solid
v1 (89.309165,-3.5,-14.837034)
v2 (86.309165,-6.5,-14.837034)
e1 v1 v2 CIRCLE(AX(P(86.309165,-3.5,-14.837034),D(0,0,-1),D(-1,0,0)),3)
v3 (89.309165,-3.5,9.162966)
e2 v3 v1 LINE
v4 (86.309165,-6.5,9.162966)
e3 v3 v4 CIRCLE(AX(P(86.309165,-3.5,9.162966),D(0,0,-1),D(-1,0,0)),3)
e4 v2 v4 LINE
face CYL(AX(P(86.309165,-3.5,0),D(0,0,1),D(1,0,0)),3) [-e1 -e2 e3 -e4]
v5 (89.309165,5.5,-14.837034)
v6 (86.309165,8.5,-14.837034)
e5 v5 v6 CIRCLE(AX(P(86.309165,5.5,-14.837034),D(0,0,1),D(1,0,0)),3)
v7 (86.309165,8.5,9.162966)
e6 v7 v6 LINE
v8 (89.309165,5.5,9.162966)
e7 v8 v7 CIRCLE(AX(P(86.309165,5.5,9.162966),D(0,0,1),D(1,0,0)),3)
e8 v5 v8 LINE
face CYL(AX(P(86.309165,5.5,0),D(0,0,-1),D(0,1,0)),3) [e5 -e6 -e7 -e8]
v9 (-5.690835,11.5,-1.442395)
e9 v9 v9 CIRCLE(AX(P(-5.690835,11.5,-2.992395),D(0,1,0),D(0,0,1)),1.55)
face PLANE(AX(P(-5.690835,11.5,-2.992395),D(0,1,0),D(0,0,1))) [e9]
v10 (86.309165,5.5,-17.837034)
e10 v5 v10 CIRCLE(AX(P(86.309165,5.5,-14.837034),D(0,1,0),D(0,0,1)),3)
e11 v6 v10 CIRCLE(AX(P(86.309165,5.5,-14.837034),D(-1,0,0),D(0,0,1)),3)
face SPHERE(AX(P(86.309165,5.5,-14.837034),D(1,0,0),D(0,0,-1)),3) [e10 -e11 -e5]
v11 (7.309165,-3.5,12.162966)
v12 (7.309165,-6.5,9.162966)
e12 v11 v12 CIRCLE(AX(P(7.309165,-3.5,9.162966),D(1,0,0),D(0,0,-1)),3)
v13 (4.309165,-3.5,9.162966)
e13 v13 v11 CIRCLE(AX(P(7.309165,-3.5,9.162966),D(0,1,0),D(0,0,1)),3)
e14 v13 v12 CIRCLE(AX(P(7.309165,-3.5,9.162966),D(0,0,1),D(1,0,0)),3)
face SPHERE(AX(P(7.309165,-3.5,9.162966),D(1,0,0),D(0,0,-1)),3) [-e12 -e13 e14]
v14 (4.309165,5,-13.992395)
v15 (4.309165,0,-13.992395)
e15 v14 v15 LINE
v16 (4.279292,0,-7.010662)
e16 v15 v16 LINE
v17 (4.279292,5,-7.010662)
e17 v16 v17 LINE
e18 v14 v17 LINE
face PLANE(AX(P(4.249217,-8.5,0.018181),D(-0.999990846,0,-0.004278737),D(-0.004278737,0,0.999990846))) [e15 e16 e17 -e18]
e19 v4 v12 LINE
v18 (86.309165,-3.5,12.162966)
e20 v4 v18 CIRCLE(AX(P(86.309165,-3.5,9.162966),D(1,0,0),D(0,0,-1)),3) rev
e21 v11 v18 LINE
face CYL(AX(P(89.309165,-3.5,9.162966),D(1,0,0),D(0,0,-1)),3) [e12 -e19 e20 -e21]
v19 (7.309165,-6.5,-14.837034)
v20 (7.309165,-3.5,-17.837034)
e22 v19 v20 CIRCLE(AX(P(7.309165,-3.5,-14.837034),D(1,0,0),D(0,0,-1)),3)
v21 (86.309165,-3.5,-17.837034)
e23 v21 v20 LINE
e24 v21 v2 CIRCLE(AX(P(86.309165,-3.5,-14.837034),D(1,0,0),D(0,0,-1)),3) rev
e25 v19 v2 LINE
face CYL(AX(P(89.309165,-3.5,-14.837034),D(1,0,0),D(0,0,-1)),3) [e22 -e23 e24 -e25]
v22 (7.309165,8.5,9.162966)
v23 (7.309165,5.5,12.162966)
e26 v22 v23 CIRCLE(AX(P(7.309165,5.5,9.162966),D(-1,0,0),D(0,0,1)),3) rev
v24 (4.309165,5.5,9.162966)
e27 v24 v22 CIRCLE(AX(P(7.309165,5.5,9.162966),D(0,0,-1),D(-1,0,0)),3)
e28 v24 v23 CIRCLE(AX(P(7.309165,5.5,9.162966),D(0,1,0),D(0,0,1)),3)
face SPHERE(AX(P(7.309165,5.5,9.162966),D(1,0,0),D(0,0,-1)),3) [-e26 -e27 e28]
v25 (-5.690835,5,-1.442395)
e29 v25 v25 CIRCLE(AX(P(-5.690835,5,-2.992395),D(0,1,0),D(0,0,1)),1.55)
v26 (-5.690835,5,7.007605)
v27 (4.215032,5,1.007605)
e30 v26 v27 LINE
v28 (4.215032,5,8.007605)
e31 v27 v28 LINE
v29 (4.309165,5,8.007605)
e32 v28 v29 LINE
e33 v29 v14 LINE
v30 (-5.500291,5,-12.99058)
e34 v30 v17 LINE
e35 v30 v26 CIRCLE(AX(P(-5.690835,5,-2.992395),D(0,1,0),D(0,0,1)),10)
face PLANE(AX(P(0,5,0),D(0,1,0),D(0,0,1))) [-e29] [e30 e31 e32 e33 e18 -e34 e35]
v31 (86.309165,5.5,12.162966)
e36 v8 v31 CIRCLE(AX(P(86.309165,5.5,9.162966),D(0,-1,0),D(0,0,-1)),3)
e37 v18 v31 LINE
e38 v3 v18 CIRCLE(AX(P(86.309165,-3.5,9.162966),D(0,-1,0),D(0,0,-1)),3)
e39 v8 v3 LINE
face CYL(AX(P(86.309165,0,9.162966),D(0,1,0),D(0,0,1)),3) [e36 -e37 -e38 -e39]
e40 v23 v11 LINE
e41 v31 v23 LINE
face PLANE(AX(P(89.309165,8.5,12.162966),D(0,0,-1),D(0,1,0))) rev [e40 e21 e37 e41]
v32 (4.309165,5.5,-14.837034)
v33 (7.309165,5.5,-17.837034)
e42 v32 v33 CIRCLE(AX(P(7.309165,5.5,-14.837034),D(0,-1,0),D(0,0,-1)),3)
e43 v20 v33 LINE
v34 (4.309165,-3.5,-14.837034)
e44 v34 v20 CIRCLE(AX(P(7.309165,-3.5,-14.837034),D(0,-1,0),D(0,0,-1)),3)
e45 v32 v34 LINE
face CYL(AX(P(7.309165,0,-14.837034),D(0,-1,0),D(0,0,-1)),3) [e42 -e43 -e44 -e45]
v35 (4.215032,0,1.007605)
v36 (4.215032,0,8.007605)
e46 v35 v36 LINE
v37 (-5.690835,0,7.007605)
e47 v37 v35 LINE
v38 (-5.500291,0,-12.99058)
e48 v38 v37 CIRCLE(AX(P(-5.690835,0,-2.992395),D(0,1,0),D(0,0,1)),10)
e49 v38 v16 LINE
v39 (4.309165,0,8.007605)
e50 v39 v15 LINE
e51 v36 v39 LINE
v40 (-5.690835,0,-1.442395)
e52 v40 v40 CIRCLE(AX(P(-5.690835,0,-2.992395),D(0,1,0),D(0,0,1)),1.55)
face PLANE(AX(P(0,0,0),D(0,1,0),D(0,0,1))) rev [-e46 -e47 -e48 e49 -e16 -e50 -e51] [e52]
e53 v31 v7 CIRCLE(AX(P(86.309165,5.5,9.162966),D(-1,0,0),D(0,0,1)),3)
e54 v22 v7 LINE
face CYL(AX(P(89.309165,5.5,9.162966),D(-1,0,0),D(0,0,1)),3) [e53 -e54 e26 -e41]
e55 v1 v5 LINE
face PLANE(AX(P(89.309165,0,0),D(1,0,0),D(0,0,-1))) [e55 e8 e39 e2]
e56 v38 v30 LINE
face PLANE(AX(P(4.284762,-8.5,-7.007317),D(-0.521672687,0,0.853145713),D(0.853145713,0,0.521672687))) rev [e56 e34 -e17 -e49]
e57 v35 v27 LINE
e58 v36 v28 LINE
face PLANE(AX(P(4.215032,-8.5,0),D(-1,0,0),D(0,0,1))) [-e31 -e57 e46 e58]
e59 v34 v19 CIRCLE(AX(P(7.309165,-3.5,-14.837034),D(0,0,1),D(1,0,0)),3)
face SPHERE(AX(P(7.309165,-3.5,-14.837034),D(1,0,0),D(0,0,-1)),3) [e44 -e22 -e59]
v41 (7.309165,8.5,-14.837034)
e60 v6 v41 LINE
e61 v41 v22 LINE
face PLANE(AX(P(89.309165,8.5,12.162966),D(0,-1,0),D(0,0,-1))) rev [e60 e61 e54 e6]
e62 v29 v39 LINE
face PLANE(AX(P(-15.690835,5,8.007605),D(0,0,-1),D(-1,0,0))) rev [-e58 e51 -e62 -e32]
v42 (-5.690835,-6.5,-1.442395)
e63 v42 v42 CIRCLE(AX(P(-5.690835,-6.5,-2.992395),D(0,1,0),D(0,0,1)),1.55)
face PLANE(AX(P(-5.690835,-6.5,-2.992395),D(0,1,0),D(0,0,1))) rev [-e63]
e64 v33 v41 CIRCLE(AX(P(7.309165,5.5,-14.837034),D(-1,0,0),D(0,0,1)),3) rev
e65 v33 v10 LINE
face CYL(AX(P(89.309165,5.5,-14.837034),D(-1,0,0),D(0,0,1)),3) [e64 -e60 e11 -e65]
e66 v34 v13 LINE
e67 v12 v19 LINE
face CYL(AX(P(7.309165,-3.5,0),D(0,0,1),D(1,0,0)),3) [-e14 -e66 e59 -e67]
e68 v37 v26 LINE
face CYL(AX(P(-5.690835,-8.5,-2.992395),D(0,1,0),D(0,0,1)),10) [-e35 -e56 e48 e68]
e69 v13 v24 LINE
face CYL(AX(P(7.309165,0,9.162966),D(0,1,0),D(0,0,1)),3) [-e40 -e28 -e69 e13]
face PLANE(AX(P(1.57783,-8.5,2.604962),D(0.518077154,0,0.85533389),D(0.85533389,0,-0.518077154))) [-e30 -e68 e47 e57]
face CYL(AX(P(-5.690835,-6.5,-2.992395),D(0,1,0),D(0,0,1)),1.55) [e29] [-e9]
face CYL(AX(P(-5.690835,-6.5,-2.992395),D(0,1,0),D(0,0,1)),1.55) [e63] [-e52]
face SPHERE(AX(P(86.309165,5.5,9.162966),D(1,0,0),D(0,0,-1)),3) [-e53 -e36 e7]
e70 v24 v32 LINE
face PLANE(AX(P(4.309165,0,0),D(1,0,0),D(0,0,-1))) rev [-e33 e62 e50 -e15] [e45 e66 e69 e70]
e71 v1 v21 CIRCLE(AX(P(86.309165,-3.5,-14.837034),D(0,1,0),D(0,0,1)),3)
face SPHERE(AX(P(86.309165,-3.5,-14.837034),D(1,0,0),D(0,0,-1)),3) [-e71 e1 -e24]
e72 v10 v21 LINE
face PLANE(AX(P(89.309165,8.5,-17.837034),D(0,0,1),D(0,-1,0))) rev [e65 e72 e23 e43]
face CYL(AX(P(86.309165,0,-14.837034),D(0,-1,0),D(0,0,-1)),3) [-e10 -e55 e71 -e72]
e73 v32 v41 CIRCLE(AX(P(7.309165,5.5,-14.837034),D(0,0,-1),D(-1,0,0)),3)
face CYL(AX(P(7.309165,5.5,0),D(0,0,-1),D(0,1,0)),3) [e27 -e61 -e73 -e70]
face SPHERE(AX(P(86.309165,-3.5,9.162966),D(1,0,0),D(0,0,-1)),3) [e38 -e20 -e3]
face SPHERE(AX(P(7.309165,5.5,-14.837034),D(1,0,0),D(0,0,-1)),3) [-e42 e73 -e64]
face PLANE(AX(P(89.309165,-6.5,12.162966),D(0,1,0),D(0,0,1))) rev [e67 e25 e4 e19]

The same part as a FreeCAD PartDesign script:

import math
import FreeCAD as App
import Part
import Sketcher
Q = App.Units.Quantity


def edges_at(feature, points):
    """Names of the edges that pass closest to the given points."""
    edges = feature.Shape.Edges
    near = lambda p: min(range(len(edges)), key=lambda i: edges[i].distToShape(Part.Vertex(*p))[0])
    return sorted({f"Edge{near(p) + 1}" for p in points})

doc = App.newDocument("Part")
body = doc.addObject("PartDesign::Body", "Body")

sketch1 = doc.addObject("Sketcher::SketchObject", "Sketch")
body.addObject(sketch1)
sketch1.AttachmentSupport = (doc.XZ_Plane, [""])
sketch1.MapMode = "FlatFace"
sketch1.addGeometry(Part.LineSegment(App.Vector(-16, -14, 0), App.Vector(-16, 8, 0)), False)
sketch1.addGeometry(Part.LineSegment(App.Vector(-16, 8, 0), App.Vector(4, 8, 0)), False)
sketch1.addGeometry(Part.LineSegment(App.Vector(4, 8, 0), App.Vector(4, -14, 0)), False)
sketch1.addGeometry(Part.LineSegment(App.Vector(4, -14, 0), App.Vector(-16, -14, 0)), False)
sketch1.addConstraint(Sketcher.Constraint("Coincident", 0, 2, 1, 1))
sketch1.addConstraint(Sketcher.Constraint("Coincident", 1, 2, 2, 1))
sketch1.addConstraint(Sketcher.Constraint("Coincident", 2, 2, 3, 1))
sketch1.addConstraint(Sketcher.Constraint("Coincident", 3, 2, 0, 1))
sketch1.addConstraint(Sketcher.Constraint("Vertical", 0))
sketch1.addConstraint(Sketcher.Constraint("Horizontal", 1))
sketch1.addConstraint(Sketcher.Constraint("Vertical", 2))
sketch1.addConstraint(Sketcher.Constraint("Horizontal", 3))
sketch1.addConstraint(Sketcher.Constraint("DistanceX", 1, 1, 1, 2, Q("20 mm")))
sketch1.addConstraint(Sketcher.Constraint("DistanceY", 0, 1, 0, 2, Q("22 mm")))
sketch1.addConstraint(Sketcher.Constraint("DistanceX", 0, 2, -1, 1, Q("15.690835 mm")))
sketch1.addConstraint(Sketcher.Constraint("DistanceY", -1, 1, 0, 2, Q("8.007605 mm")))
pad1 = doc.addObject("PartDesign::Pad", "Pad")
body.addObject(pad1)
pad1.Profile = sketch1
pad1.Length = 5
pad1.Reversed = True

sketch2 = doc.addObject("Sketcher::SketchObject", "Sketch001")
body.addObject(sketch2)
sketch2.AttachmentSupport = (doc.XZ_Plane, [""])
sketch2.MapMode = "FlatFace"
sketch2.AttachmentOffset = App.Placement(App.Vector(0, 0, -5), App.Rotation())
sketch2.addGeometry(Part.Circle(App.Vector(-5.7, -3, 0), App.Vector(0, 0, 1), 1.6), False)
sketch2.addConstraint(Sketcher.Constraint("Diameter", 0, Q("3.1 mm")))
sketch2.addConstraint(Sketcher.Constraint("DistanceX", 0, 3, -1, 1, Q("5.690835 mm")))
sketch2.addConstraint(Sketcher.Constraint("DistanceY", 0, 3, -1, 1, Q("2.992395 mm")))
pad2 = doc.addObject("PartDesign::Pad", "Pad001")
body.addObject(pad2)
pad2.Profile = sketch2
pad2.Type = "TwoLengths"
pad2.Length = 6.5
pad2.Length2 = 11.5
pad2.Reversed = True

sketch3 = doc.addObject("Sketcher::SketchObject", "Sketch002")
body.addObject(sketch3)
sketch3.AttachmentSupport = (doc.YZ_Plane, [""])
sketch3.MapMode = "FlatFace"
sketch3.AttachmentOffset = App.Placement(App.Vector(0, 0, 4.309165), App.Rotation())
sketch3.addGeometry(Part.LineSegment(App.Vector(8, 12, 0), App.Vector(-6, 12, 0)), False)
sketch3.addGeometry(Part.LineSegment(App.Vector(-6, 12, 0), App.Vector(-6, -18, 0)), False)
sketch3.addGeometry(Part.LineSegment(App.Vector(-6, -18, 0), App.Vector(8, -18, 0)), False)
sketch3.addGeometry(Part.LineSegment(App.Vector(8, -18, 0), App.Vector(8, 12, 0)), False)
sketch3.addConstraint(Sketcher.Constraint("Coincident", 0, 2, 1, 1))
sketch3.addConstraint(Sketcher.Constraint("Coincident", 1, 2, 2, 1))
sketch3.addConstraint(Sketcher.Constraint("Coincident", 2, 2, 3, 1))
sketch3.addConstraint(Sketcher.Constraint("Coincident", 3, 2, 0, 1))
sketch3.addConstraint(Sketcher.Constraint("Horizontal", 0))
sketch3.addConstraint(Sketcher.Constraint("Vertical", 1))
sketch3.addConstraint(Sketcher.Constraint("Horizontal", 2))
sketch3.addConstraint(Sketcher.Constraint("Vertical", 3))
sketch3.addConstraint(Sketcher.Constraint("DistanceX", 0, 2, 0, 1, Q("15 mm")))
sketch3.addConstraint(Sketcher.Constraint("DistanceY", 1, 2, 1, 1, Q("30 mm")))
sketch3.addConstraint(Sketcher.Constraint("DistanceX", 0, 2, -1, 1, Q("6.5 mm")))
sketch3.addConstraint(Sketcher.Constraint("DistanceY", -1, 1, 0, 2, Q("12.162966 mm")))
pad3 = doc.addObject("PartDesign::Pad", "Pad002")
body.addObject(pad3)
pad3.Profile = sketch3
pad3.Length = 85
doc.recompute()

fillet = doc.addObject("PartDesign::Fillet", "Fillet")
body.addObject(fillet)
fillet.Base = (pad3, edges_at(pad3, [(46.809, -6.5, 12.163)]))
fillet.Radius = 3
doc.recompute()

fillet2 = doc.addObject("PartDesign::Fillet", "Fillet001")
body.addObject(fillet2)
fillet2.Base = (fillet, edges_at(fillet, [(46.809, 8.5, 12.163)]))
fillet2.Radius = 3
doc.recompute()

fillet3 = doc.addObject("PartDesign::Fillet", "Fillet002")
body.addObject(fillet3)
fillet3.Base = (fillet2, edges_at(fillet2, [(46.809, 8.5, -17.837)]))
fillet3.Radius = 3
doc.recompute()

fillet4 = doc.addObject("PartDesign::Fillet", "Fillet003")
body.addObject(fillet4)
fillet4.Base = (fillet3, edges_at(fillet3, [(46.809, -6.5, -17.837)]))
fillet4.Radius = 3
doc.recompute()

fillet5 = doc.addObject("PartDesign::Fillet", "Fillet004")
body.addObject(fillet5)
fillet5.Base = (fillet4, edges_at(fillet4, [
    (89.309, -6.5, -2.837),
    (89.309, -5.621, 11.284),
    (89.309, 1, 12.163),
    (89.309, 7.621, 11.284),
    (89.309, 8.5, -2.837),
    (89.309, 7.621, -16.958),
    (89.309, 1, -17.837),
    (89.309, -5.621, -16.958),
]))
fillet5.Radius = 3
doc.recompute()

fillet6 = doc.addObject("PartDesign::Fillet", "Fillet005")
body.addObject(fillet6)
fillet6.Base = (fillet5, edges_at(fillet5, [
    (4.309, -6.5, -2.837),
    (4.309, -5.621, 11.284),
    (4.309, 1, 12.163),
    (4.309, 7.621, 11.284),
    (4.309, 8.5, -2.837),
    (4.309, 7.621, -16.958),
    (4.309, 1, -17.837),
    (4.309, -5.621, -16.958),
]))
fillet6.Radius = 3

sketch4 = doc.addObject("Sketcher::SketchObject", "Sketch003")
body.addObject(sketch4)
sketch4.AttachmentSupport = (doc.XZ_Plane, [""])
sketch4.MapMode = "FlatFace"
sketch4.AttachmentOffset = App.Placement(App.Vector(0, 0, -11.5), App.Rotation())
sketch4.addGeometry(Part.ArcOfCircle(Part.Circle(App.Vector(-6, -3, 0), App.Vector(0, 0, 1), 10), math.radians(90), math.radians(180)), False)
sketch4.addGeometry(Part.LineSegment(App.Vector(-16, -3, 0), App.Vector(-16, 8, 0)), False)
sketch4.addGeometry(Part.LineSegment(App.Vector(-16, 8, 0), App.Vector(4, 8, 0)), False)
sketch4.addGeometry(Part.LineSegment(App.Vector(4, 8, 0), App.Vector(4, 1, 0)), False)
sketch4.addGeometry(Part.LineSegment(App.Vector(4, 1, 0), App.Vector(-6, 7, 0)), False)
sketch4.addConstraint(Sketcher.Constraint("Tangent", 0, 2, 1, 1))
sketch4.addConstraint(Sketcher.Constraint("Coincident", 1, 2, 2, 1))
sketch4.addConstraint(Sketcher.Constraint("Coincident", 2, 2, 3, 1))
sketch4.addConstraint(Sketcher.Constraint("Coincident", 3, 2, 4, 1))
sketch4.addConstraint(Sketcher.Constraint("Coincident", 4, 2, 0, 1))
sketch4.addConstraint(Sketcher.Constraint("Vertical", 1))
sketch4.addConstraint(Sketcher.Constraint("Horizontal", 2))
sketch4.addConstraint(Sketcher.Constraint("Vertical", 3))
sketch4.addConstraint(Sketcher.Constraint("Vertical", 0, 3, 4, 2))
sketch4.addConstraint(Sketcher.Constraint("Radius", 0, Q("10 mm")))
sketch4.addConstraint(Sketcher.Constraint("DistanceY", 1, 1, 1, 2, Q("11 mm")))
sketch4.addConstraint(Sketcher.Constraint("DistanceY", 3, 2, 3, 1, Q("7 mm")))
sketch4.addConstraint(Sketcher.Constraint("DistanceX", 2, 1, 2, 2, Q("19.905867 mm")))
sketch4.addConstraint(Sketcher.Constraint("DistanceX", -1, 1, 2, 2, Q("4.215032 mm")))
sketch4.addConstraint(Sketcher.Constraint("DistanceY", 0, 3, -1, 1, Q("2.992395 mm")))
pocket1 = doc.addObject("PartDesign::Pocket", "Pocket")
body.addObject(pocket1)
pocket1.Profile = sketch4
pocket1.Length = 20
pocket1.Reversed = True

sketch5 = doc.addObject("Sketcher::SketchObject", "Sketch004")
body.addObject(sketch5)
sketch5.AttachmentSupport = (doc.XZ_Plane, [""])
sketch5.MapMode = "FlatFace"
sketch5.AttachmentOffset = App.Placement(App.Vector(0, 0, -11.5), App.Rotation())
sketch5.addGeometry(Part.LineSegment(App.Vector(-6, -13, 0), App.Vector(4, -7, 0)), False)
sketch5.addGeometry(Part.LineSegment(App.Vector(4, -7, 0), App.Vector(4, -14, 0)), False)
sketch5.addGeometry(Part.LineSegment(App.Vector(4, -14, 0), App.Vector(-16, -14, 0)), False)
sketch5.addGeometry(Part.LineSegment(App.Vector(-16, -14, 0), App.Vector(-16, -3, 0)), False)
sketch5.addGeometry(Part.ArcOfCircle(Part.Circle(App.Vector(-6, -3, 0), App.Vector(0, 0, 1), 10), math.radians(180), math.radians(271)), False)
sketch5.addConstraint(Sketcher.Constraint("Coincident", 0, 2, 1, 1))
sketch5.addConstraint(Sketcher.Constraint("Coincident", 1, 2, 2, 1))
sketch5.addConstraint(Sketcher.Constraint("Coincident", 2, 2, 3, 1))
sketch5.addConstraint(Sketcher.Constraint("Tangent", 3, 2, 4, 1))
sketch5.addConstraint(Sketcher.Constraint("Coincident", 4, 2, 0, 1))
sketch5.addConstraint(Sketcher.Constraint("Horizontal", 2))
sketch5.addConstraint(Sketcher.Constraint("Vertical", 3))
sketch5.addConstraint(Sketcher.Constraint("Radius", 4, Q("10 mm")))
sketch5.addConstraint(Sketcher.Constraint("DistanceX", 2, 2, 2, 1, Q("20 mm")))
sketch5.addConstraint(Sketcher.Constraint("DistanceY", 3, 1, 3, 2, Q("11 mm")))
sketch5.addConstraint(Sketcher.Constraint("Distance", 0, Q("11.462969 mm")))
sketch5.addConstraint(Sketcher.Constraint("DistanceX", -1, 1, 0, 2, Q("4.279292 mm")))
sketch5.addConstraint(Sketcher.Constraint("DistanceX", 4, 2, -1, 1, Q("5.500291 mm")))
sketch5.addConstraint(Sketcher.Constraint("DistanceY", 4, 2, -1, 1, Q("12.99058 mm")))
sketch5.addConstraint(Sketcher.Constraint("Distance", 1, Q("6.981797 mm")))
pocket2 = doc.addObject("PartDesign::Pocket", "Pocket001")
body.addObject(pocket2)
pocket2.Profile = sketch5
pocket2.Length = 20
pocket2.Reversed = True

doc.recompute()
